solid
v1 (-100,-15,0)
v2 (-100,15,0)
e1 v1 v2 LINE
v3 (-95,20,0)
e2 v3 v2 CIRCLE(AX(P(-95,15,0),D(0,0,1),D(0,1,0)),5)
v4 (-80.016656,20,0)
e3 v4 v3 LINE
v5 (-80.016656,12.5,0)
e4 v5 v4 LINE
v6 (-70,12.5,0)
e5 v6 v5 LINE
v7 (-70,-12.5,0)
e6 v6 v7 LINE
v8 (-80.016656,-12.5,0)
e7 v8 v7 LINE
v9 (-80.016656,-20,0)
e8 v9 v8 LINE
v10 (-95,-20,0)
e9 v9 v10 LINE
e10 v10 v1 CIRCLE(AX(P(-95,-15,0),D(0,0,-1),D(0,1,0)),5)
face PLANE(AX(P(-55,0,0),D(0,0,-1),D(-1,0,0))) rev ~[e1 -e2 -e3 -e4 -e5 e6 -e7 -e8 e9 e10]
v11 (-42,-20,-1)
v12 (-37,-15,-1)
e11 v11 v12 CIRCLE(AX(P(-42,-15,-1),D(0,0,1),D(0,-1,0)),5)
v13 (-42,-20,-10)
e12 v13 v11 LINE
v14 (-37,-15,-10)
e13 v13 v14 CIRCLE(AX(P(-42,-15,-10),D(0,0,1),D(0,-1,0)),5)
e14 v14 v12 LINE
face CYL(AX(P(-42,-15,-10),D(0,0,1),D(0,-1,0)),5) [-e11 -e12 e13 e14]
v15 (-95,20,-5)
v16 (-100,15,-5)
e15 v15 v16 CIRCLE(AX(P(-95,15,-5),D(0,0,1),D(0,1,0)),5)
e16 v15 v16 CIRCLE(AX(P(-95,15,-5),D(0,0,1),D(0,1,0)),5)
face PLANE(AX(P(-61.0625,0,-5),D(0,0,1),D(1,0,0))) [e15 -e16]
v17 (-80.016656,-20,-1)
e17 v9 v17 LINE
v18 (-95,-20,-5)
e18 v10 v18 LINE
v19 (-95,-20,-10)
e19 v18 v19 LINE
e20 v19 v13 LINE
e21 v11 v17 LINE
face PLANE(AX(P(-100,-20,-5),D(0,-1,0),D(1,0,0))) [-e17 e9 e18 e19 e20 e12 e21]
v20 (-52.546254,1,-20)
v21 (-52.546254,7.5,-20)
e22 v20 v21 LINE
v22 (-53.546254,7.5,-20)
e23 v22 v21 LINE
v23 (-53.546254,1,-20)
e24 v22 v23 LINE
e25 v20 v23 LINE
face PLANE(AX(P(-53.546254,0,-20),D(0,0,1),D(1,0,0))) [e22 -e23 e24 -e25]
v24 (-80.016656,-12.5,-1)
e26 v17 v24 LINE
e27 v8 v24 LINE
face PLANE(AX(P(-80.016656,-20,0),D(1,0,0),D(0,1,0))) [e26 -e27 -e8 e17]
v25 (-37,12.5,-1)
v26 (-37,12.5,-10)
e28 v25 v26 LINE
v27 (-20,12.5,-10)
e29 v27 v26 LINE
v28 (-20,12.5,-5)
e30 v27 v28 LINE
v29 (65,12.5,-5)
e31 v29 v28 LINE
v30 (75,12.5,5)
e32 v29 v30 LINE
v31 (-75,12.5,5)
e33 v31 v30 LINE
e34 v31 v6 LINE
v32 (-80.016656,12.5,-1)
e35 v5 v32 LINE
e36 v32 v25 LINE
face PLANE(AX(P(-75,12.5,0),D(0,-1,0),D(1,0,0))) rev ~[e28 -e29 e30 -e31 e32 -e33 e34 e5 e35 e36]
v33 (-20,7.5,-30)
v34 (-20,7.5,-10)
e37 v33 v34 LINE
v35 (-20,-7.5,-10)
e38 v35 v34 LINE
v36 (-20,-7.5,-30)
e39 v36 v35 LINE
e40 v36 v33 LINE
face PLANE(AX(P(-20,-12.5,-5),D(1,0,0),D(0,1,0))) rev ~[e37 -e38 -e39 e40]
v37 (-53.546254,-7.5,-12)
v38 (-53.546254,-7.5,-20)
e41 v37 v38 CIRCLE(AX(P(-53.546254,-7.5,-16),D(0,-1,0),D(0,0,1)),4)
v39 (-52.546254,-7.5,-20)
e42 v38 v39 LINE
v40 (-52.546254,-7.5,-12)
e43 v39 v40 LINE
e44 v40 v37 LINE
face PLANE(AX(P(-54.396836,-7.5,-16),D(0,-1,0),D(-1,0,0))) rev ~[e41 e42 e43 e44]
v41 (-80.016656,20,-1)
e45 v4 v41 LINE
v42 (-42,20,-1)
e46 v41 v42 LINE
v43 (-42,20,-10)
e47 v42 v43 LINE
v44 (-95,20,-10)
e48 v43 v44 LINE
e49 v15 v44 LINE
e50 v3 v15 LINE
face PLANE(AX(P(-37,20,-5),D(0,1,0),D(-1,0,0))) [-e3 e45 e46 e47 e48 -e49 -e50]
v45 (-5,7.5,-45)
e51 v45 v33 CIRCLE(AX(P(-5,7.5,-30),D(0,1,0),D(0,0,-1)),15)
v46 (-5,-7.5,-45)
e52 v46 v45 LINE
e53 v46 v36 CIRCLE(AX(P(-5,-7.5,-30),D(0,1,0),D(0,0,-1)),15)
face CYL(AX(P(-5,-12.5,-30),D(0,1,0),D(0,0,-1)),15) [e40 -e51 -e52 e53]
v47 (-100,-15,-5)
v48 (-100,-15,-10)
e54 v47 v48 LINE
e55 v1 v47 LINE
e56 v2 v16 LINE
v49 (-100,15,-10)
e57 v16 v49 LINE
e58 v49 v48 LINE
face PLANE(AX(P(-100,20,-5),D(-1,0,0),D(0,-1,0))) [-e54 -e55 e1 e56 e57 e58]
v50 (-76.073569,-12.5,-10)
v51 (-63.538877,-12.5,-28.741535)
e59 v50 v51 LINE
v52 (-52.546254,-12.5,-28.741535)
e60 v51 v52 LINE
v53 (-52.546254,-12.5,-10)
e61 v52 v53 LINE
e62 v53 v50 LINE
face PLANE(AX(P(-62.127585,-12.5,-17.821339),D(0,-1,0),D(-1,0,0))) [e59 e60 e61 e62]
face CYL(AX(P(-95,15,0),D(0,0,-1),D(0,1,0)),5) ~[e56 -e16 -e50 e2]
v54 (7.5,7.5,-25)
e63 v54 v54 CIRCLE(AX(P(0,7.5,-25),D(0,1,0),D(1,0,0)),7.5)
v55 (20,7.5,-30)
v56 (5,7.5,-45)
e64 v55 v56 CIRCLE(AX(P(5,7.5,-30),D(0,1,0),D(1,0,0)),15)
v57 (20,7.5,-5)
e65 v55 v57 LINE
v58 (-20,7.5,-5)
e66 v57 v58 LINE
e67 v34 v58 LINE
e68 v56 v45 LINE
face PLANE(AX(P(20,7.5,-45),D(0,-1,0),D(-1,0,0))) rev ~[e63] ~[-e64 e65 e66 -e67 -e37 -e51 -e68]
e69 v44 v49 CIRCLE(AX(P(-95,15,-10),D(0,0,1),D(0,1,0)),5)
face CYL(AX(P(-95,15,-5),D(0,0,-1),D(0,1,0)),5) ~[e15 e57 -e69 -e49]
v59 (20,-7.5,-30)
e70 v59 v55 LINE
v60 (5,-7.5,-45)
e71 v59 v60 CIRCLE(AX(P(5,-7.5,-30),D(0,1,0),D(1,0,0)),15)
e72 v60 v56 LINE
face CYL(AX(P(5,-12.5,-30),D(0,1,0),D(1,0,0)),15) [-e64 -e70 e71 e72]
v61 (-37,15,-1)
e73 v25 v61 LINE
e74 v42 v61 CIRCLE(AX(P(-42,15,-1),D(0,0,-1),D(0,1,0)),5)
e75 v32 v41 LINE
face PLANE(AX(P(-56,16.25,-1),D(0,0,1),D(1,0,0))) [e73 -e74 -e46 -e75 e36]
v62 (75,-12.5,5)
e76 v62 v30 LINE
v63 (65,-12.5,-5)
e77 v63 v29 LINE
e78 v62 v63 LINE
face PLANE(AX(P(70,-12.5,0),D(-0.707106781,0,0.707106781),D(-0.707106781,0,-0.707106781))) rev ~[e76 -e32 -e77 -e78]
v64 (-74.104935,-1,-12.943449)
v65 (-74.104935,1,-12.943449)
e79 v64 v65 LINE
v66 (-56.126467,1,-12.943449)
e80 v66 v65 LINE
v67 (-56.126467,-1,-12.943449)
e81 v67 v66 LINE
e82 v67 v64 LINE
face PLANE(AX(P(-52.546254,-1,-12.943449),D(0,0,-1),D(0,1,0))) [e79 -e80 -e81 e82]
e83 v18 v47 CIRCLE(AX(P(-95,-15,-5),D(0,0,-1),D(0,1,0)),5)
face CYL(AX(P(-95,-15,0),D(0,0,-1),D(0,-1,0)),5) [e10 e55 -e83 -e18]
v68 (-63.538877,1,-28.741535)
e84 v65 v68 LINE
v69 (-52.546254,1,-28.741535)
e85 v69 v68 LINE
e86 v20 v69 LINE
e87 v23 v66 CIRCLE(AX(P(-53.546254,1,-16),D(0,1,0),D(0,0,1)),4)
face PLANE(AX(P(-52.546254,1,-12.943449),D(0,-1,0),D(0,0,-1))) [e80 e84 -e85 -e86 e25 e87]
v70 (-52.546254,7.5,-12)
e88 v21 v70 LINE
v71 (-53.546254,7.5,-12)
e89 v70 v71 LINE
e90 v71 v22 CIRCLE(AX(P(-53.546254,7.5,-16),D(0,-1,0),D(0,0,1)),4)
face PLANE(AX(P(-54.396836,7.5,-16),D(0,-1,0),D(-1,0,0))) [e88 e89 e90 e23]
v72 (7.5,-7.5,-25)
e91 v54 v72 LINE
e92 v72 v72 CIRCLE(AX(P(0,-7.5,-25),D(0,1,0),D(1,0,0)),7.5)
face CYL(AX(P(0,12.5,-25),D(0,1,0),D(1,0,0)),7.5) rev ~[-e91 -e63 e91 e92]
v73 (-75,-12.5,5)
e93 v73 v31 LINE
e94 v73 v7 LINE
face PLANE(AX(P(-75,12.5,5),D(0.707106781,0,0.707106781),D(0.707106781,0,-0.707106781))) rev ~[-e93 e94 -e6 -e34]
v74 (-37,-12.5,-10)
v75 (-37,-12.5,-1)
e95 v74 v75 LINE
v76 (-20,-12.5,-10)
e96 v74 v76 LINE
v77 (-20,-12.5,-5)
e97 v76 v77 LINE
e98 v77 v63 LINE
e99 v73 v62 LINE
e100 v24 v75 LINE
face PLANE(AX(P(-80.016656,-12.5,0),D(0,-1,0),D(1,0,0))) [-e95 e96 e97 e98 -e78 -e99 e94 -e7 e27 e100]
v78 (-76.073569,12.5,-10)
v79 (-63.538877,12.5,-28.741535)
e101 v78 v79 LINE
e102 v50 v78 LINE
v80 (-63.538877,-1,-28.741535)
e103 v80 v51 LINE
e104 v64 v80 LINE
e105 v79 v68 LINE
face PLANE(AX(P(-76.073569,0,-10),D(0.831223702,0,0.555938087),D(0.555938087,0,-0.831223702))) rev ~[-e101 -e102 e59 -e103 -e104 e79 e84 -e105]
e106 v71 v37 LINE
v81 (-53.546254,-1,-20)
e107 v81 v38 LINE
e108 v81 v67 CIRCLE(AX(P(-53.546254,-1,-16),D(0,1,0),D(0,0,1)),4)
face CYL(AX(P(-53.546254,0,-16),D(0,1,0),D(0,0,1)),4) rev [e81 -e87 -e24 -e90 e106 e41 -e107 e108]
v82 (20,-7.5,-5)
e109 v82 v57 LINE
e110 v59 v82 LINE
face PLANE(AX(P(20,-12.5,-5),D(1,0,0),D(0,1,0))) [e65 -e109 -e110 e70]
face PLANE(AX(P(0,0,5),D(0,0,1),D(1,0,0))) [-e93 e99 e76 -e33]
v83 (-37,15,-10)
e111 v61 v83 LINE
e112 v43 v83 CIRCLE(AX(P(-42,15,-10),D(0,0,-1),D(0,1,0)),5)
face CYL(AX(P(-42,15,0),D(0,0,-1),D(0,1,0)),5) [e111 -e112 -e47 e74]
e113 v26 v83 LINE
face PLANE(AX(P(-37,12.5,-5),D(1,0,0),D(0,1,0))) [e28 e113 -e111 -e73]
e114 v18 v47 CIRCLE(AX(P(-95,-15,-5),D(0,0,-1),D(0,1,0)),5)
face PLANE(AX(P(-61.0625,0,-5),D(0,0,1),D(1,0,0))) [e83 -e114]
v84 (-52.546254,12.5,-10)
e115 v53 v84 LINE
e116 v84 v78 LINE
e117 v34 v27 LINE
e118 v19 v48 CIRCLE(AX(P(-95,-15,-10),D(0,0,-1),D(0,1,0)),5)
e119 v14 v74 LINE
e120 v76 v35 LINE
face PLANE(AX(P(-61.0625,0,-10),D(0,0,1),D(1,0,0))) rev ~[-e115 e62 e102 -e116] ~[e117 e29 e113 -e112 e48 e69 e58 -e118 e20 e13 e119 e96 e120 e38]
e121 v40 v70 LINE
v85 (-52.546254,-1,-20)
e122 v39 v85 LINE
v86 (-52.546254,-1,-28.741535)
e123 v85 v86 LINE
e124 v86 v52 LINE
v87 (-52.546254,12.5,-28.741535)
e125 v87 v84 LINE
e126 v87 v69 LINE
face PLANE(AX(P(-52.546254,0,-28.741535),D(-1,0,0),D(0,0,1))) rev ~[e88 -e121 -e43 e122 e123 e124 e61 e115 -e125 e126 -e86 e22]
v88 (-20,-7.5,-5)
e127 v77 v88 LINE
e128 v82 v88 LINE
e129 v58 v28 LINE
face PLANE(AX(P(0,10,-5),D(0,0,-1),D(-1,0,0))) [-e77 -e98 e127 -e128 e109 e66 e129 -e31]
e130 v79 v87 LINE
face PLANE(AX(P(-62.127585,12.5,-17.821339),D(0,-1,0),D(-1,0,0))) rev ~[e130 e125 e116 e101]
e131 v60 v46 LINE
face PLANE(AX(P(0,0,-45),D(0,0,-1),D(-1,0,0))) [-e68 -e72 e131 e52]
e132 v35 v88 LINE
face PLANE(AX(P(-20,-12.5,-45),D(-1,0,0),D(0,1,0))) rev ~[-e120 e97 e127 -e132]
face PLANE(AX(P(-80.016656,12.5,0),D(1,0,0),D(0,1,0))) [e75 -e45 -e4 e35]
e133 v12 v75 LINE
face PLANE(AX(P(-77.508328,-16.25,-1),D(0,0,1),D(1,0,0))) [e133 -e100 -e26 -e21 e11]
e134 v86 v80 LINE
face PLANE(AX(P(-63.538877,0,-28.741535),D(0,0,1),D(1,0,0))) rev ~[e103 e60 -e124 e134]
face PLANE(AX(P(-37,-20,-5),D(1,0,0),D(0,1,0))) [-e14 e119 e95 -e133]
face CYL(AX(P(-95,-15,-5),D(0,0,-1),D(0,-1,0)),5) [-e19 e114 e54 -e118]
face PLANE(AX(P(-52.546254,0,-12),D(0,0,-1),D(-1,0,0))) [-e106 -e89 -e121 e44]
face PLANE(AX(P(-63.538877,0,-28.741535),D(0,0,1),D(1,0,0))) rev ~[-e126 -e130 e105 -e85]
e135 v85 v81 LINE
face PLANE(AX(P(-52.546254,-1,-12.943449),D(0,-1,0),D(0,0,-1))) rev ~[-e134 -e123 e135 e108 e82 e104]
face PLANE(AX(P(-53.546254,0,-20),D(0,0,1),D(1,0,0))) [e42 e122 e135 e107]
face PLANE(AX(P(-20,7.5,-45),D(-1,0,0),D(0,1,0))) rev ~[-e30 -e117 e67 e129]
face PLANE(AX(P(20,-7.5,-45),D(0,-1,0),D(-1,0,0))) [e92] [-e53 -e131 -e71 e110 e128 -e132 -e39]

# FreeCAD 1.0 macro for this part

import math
import FreeCAD as App
import Part
import Sketcher

V = App.Vector
Q = App.Units.Quantity


def edges_at(feature, points):
    """Names of the edges that pass closest to the given points."""
    edges = feature.Shape.Edges
    near = lambda p: min(range(len(edges)), key=lambda i: edges[i].distToShape(Part.Vertex(*p))[0])
    return sorted({f"Edge{near(p) + 1}" for p in points})

doc = App.newDocument("Part")
body = doc.addObject("PartDesign::Body", "Body")

# Sketch on XY plane
sketch1 = body.newObject("Sketcher::SketchObject", "Sketch")
sketch1.AttachmentSupport = (doc.getObject("XY_Plane"), [""])
sketch1.MapMode = "FlatFace"
sketch1.addGeometry(Part.LineSegment(V(-75, 12, 0), V(-75, -12, 0)), False)
sketch1.addGeometry(Part.LineSegment(V(-75, -12, 0), V(75, -12, 0)), False)
sketch1.addGeometry(Part.LineSegment(V(75, -12, 0), V(75, 12, 0)), False)
sketch1.addGeometry(Part.LineSegment(V(75, 12, 0), V(-75, 12, 0)), False)
sketch1.addConstraint(Sketcher.Constraint("Coincident", 0, 2, 1, 1))
sketch1.addConstraint(Sketcher.Constraint("Coincident", 1, 2, 2, 1))
sketch1.addConstraint(Sketcher.Constraint("Coincident", 2, 2, 3, 1))
sketch1.addConstraint(Sketcher.Constraint("Coincident", 3, 2, 0, 1))
sketch1.addConstraint(Sketcher.Constraint("Vertical", 0))
sketch1.addConstraint(Sketcher.Constraint("Horizontal", 1))
sketch1.addConstraint(Sketcher.Constraint("Vertical", 2))
sketch1.addConstraint(Sketcher.Constraint("Horizontal", 3))
sketch1.addConstraint(Sketcher.Constraint("Symmetric", 0, 2, 2, 2, -1, 1))
sketch1.addConstraint(Sketcher.Constraint("DistanceX", 1, 1, 1, 2, Q("150 mm")))
sketch1.addConstraint(Sketcher.Constraint("DistanceY", 0, 2, 0, 1, Q("25 mm")))
pad1 = body.newObject("PartDesign::Pad", "Pad")
pad1.Profile = sketch1
pad1.Length = 5

# Sketch on XZ plane
sketch2 = body.newObject("Sketcher::SketchObject", "Sketch001")
sketch2.AttachmentSupport = (doc.getObject("XZ_Plane"), [""])
sketch2.MapMode = "FlatFace"
sketch2.AttachmentOffset = App.Placement(V(0, 0, -12.5), App.Rotation())
sketch2.addGeometry(Part.LineSegment(V(70, 0, 0), V(75, 5, 0)), False)
sketch2.addGeometry(Part.LineSegment(V(75, 5, 0), V(75, 0, 0)), False)
sketch2.addGeometry(Part.LineSegment(V(75, 0, 0), V(70, 0, 0)), False)
sketch2.addGeometry(Part.LineSegment(V(-70, 0, 0), V(-75, 0, 0)), False)
sketch2.addGeometry(Part.LineSegment(V(-75, 0, 0), V(-75, 5, 0)), False)
sketch2.addGeometry(Part.LineSegment(V(-75, 5, 0), V(-70, 0, 0)), False)
sketch2.addConstraint(Sketcher.Constraint("Coincident", 0, 2, 1, 1))
sketch2.addConstraint(Sketcher.Constraint("Coincident", 1, 2, 2, 1))
sketch2.addConstraint(Sketcher.Constraint("Coincident", 2, 2, 0, 1))
sketch2.addConstraint(Sketcher.Constraint("Coincident", 3, 2, 4, 1))
sketch2.addConstraint(Sketcher.Constraint("Coincident", 4, 2, 5, 1))
sketch2.addConstraint(Sketcher.Constraint("Coincident", 5, 2, 3, 1))
sketch2.addConstraint(Sketcher.Constraint("Vertical", 1))
sketch2.addConstraint(Sketcher.Constraint("Horizontal", 2))
sketch2.addConstraint(Sketcher.Constraint("Horizontal", 3))
sketch2.addConstraint(Sketcher.Constraint("Vertical", 4))
sketch2.addConstraint(Sketcher.Constraint("Symmetric", 1, 2, 3, 2, -1, 1))
sketch2.addConstraint(Sketcher.Constraint("Symmetric", 2, 2, 5, 2, -2))
sketch2.addConstraint(Sketcher.Constraint("Perpendicular", 0, 5))
sketch2.addConstraint(Sketcher.Constraint("Horizontal", 0, 2, 4, 2))
sketch2.addConstraint(Sketcher.Constraint("DistanceX", 2, 2, 2, 1, Q("5 mm")))
sketch2.addConstraint(Sketcher.Constraint("DistanceX", -1, 1, 0, 2, Q("75 mm")))
pocket1 = body.newObject("PartDesign::Pocket", "Pocket")
pocket1.Profile = sketch2
pocket1.Type = "ThroughAll"
pocket1.Reversed = True

# Sketch on XY plane
sketch3 = body.newObject("Sketcher::SketchObject", "Sketch002")
sketch3.AttachmentSupport = (doc.getObject("XY_Plane"), [""])
sketch3.MapMode = "FlatFace"
sketch3.addGeometry(Part.LineSegment(V(-10, 20, 0), V(-10, -20, 0)), False)
sketch3.addGeometry(Part.LineSegment(V(-10, -20, 0), V(-100, -20, 0)), False)
sketch3.addGeometry(Part.LineSegment(V(-100, -20, 0), V(-100, 20, 0)), False)
sketch3.addGeometry(Part.LineSegment(V(-100, 20, 0), V(-10, 20, 0)), False)
sketch3.addConstraint(Sketcher.Constraint("Coincident", 0, 2, 1, 1))
sketch3.addConstraint(Sketcher.Constraint("Coincident", 1, 2, 2, 1))
sketch3.addConstraint(Sketcher.Constraint("Coincident", 2, 2, 3, 1))
sketch3.addConstraint(Sketcher.Constraint("Coincident", 3, 2, 0, 1))
sketch3.addConstraint(Sketcher.Constraint("Vertical", 0))
sketch3.addConstraint(Sketcher.Constraint("Horizontal", 1))
sketch3.addConstraint(Sketcher.Constraint("Vertical", 2))
sketch3.addConstraint(Sketcher.Constraint("Horizontal", 3))
sketch3.addConstraint(Sketcher.Constraint("DistanceX", 1, 2, 1, 1, Q("90 mm")))
sketch3.addConstraint(Sketcher.Constraint("DistanceY", 0, 2, 0, 1, Q("40 mm")))
sketch3.addConstraint(Sketcher.Constraint("DistanceX", 0, 2, -1, 1, Q("10 mm")))
sketch3.addConstraint(Sketcher.Constraint("DistanceY", 0, 2, -1, 1, Q("20 mm")))
pad2 = body.newObject("PartDesign::Pad", "Pad001")
pad2.Profile = sketch3
pad2.Length = 5
pad2.Reversed = True
doc.recompute()

fillet = body.newObject("PartDesign::Fillet", "Fillet")
fillet.Base = (pad2, edges_at(pad2, [
    (-100, -20, -2.5),
    (-100, 20, -2.5),
    (-10, 20, -2.5),
    (-10, -20, -2.5),
]))
fillet.Radius = 5

# Sketch on XY plane
sketch4 = body.newObject("Sketcher::SketchObject", "Sketch003")
sketch4.AttachmentSupport = (doc.getObject("XY_Plane"), [""])
sketch4.MapMode = "FlatFace"
sketch4.addGeometry(Part.LineSegment(V(65, 12, 0), V(65, -12, 0)), False)
sketch4.addGeometry(Part.LineSegment(V(65, -12, 0), V(-10, -12, 0)), False)
sketch4.addGeometry(Part.LineSegment(V(-10, -12, 0), V(-10, 12, 0)), False)
sketch4.addGeometry(Part.LineSegment(V(-10, 12, 0), V(65, 12, 0)), False)
sketch4.addConstraint(Sketcher.Constraint("Coincident", 0, 2, 1, 1))
sketch4.addConstraint(Sketcher.Constraint("Coincident", 1, 2, 2, 1))
sketch4.addConstraint(Sketcher.Constraint("Coincident", 2, 2, 3, 1))
sketch4.addConstraint(Sketcher.Constraint("Coincident", 3, 2, 0, 1))
sketch4.addConstraint(Sketcher.Constraint("Vertical", 0))
sketch4.addConstraint(Sketcher.Constraint("Horizontal", 1))
sketch4.addConstraint(Sketcher.Constraint("Vertical", 2))
sketch4.addConstraint(Sketcher.Constraint("Horizontal", 3))
sketch4.addConstraint(Sketcher.Constraint("DistanceX", 1, 2, 1, 1, Q("75 mm")))
sketch4.addConstraint(Sketcher.Constraint("DistanceY", 0, 2, 0, 1, Q("25 mm")))
sketch4.addConstraint(Sketcher.Constraint("DistanceX", -1, 1, 0, 2, Q("65 mm")))
sketch4.addConstraint(Sketcher.Constraint("DistanceY", 0, 2, -1, 1, Q("12.5 mm")))
pad3 = body.newObject("PartDesign::Pad", "Pad002")
pad3.Profile = sketch4
pad3.Length = 5
pad3.Reversed = True

# Sketch on XZ plane
sketch5 = body.newObject("Sketcher::SketchObject", "Sketch004")
sketch5.AttachmentSupport = (doc.getObject("XZ_Plane"), [""])
sketch5.MapMode = "FlatFace"
sketch5.AttachmentOffset = App.Placement(V(0, 0, 12.5), App.Rotation())
sketch5.addGeometry(Part.LineSegment(V(70, 0, 0), V(65, 0, 0)), False)
sketch5.addGeometry(Part.LineSegment(V(65, 0, 0), V(65, -5, 0)), False)
sketch5.addGeometry(Part.LineSegment(V(65, -5, 0), V(70, 0, 0)), False)
sketch5.addConstraint(Sketcher.Constraint("Coincident", 0, 2, 1, 1))
sketch5.addConstraint(Sketcher.Constraint("Coincident", 1, 2, 2, 1))
sketch5.addConstraint(Sketcher.Constraint("Coincident", 2, 2, 0, 1))
sketch5.addConstraint(Sketcher.Constraint("Horizontal", 0))
sketch5.addConstraint(Sketcher.Constraint("Vertical", 1))
sketch5.addConstraint(Sketcher.Constraint("PointOnObject", 0, 2, -1))
sketch5.addConstraint(Sketcher.Constraint("Equal", 0, 1))
sketch5.addConstraint(Sketcher.Constraint("DistanceX", 0, 2, 0, 1, Q("5 mm")))
sketch5.addConstraint(Sketcher.Constraint("DistanceX", -1, 1, 0, 2, Q("65 mm")))
pad4 = body.newObject("PartDesign::Pad", "Pad003")
pad4.Profile = sketch5
pad4.Length = 25
pad4.Reversed = True

# Sketch on XY plane
sketch6 = body.newObject("Sketcher::SketchObject", "Sketch005")
sketch6.AttachmentSupport = (doc.getObject("XY_Plane"), [""])
sketch6.MapMode = "FlatFace"
sketch6.AttachmentOffset = App.Placement(V(0, 0, -5), App.Rotation())
sketch6.addGeometry(Part.LineSegment(V(20, 12, 0), V(20, -12, 0)), False)
sketch6.addGeometry(Part.LineSegment(V(20, -12, 0), V(-20, -12, 0)), False)
sketch6.addGeometry(Part.LineSegment(V(-20, -12, 0), V(-20, 12, 0)), False)
sketch6.addGeometry(Part.LineSegment(V(-20, 12, 0), V(20, 12, 0)), False)
sketch6.addConstraint(Sketcher.Constraint("Coincident", 0, 2, 1, 1))
sketch6.addConstraint(Sketcher.Constraint("Coincident", 1, 2, 2, 1))
sketch6.addConstraint(Sketcher.Constraint("Coincident", 2, 2, 3, 1))
sketch6.addConstraint(Sketcher.Constraint("Coincident", 3, 2, 0, 1))
sketch6.addConstraint(Sketcher.Constraint("Vertical", 0))
sketch6.addConstraint(Sketcher.Constraint("Horizontal", 1))
sketch6.addConstraint(Sketcher.Constraint("Vertical", 2))
sketch6.addConstraint(Sketcher.Constraint("Horizontal", 3))
sketch6.addConstraint(Sketcher.Constraint("Symmetric", 0, 2, 2, 2, -1, 1))
sketch6.addConstraint(Sketcher.Constraint("DistanceX", 1, 2, 1, 1, Q("40 mm")))
sketch6.addConstraint(Sketcher.Constraint("DistanceY", 0, 2, 0, 1, Q("25 mm")))
pad5 = body.newObject("PartDesign::Pad", "Pad004")
pad5.Profile = sketch6
pad5.Length = 40
pad5.Reversed = True
doc.recompute()

fillet2 = body.newObject("PartDesign::Fillet", "Fillet001")
fillet2.Base = (pad5, edges_at(pad5, [(20, 0, -45), (-20, 0, -45)]))
fillet2.Radius = 15

# Sketch on XZ plane
sketch7 = body.newObject("Sketcher::SketchObject", "Sketch006")
sketch7.AttachmentSupport = (doc.getObject("XZ_Plane"), [""])
sketch7.MapMode = "FlatFace"
sketch7.AttachmentOffset = App.Placement(V(0, 0, -12.5), App.Rotation())
sketch7.addGeometry(Part.Circle(V(0, -25, 0), V(0, 0, 1), 8), False)
sketch7.addConstraint(Sketcher.Constraint("PointOnObject", 0, 3, -2))
sketch7.addConstraint(Sketcher.Constraint("Diameter", 0, Q("15 mm")))
sketch7.addConstraint(Sketcher.Constraint("DistanceY", 0, 3, -1, 1, Q("25 mm")))
pocket2 = body.newObject("PartDesign::Pocket", "Pocket001")
pocket2.Profile = sketch7
pocket2.Length = 40
pocket2.Reversed = True

# Sketch on XY plane
sketch8 = body.newObject("Sketcher::SketchObject", "Sketch007")
sketch8.AttachmentSupport = (doc.getObject("XY_Plane"), [""])
sketch8.MapMode = "FlatFace"
sketch8.addGeometry(Part.LineSegment(V(-37, 20, 0), V(-37, 12, 0)), False)
sketch8.addGeometry(Part.LineSegment(V(-37, 12, 0), V(-10, 12, 0)), False)
sketch8.addGeometry(Part.LineSegment(V(-10, 12, 0), V(-10, 20, 0)), False)
sketch8.addGeometry(Part.LineSegment(V(-10, 20, 0), V(-37, 20, 0)), False)
sketch8.addGeometry(Part.LineSegment(V(-37, -12, 0), V(-37, -20, 0)), False)
sketch8.addGeometry(Part.LineSegment(V(-37, -20, 0), V(-10, -20, 0)), False)
sketch8.addGeometry(Part.LineSegment(V(-10, -20, 0), V(-10, -12, 0)), False)
sketch8.addGeometry(Part.LineSegment(V(-10, -12, 0), V(-37, -12, 0)), False)
sketch8.addConstraint(Sketcher.Constraint("Coincident", 0, 2, 1, 1))
sketch8.addConstraint(Sketcher.Constraint("Coincident", 1, 2, 2, 1))
sketch8.addConstraint(Sketcher.Constraint("Coincident", 2, 2, 3, 1))
sketch8.addConstraint(Sketcher.Constraint("Coincident", 3, 2, 0, 1))
sketch8.addConstraint(Sketcher.Constraint("Coincident", 4, 2, 5, 1))
sketch8.addConstraint(Sketcher.Constraint("Coincident", 5, 2, 6, 1))
sketch8.addConstraint(Sketcher.Constraint("Coincident", 6, 2, 7, 1))
sketch8.addConstraint(Sketcher.Constraint("Coincident", 7, 2, 4, 1))
sketch8.addConstraint(Sketcher.Constraint("Vertical", 0))
sketch8.addConstraint(Sketcher.Constraint("Horizontal", 1))
sketch8.addConstraint(Sketcher.Constraint("Vertical", 2))
sketch8.addConstraint(Sketcher.Constraint("Horizontal", 3))
sketch8.addConstraint(Sketcher.Constraint("Vertical", 4))
sketch8.addConstraint(Sketcher.Constraint("Horizontal", 5))
sketch8.addConstraint(Sketcher.Constraint("Vertical", 6))
sketch8.addConstraint(Sketcher.Constraint("Horizontal", 7))
sketch8.addConstraint(Sketcher.Constraint("Symmetric", 3, 2, 4, 2, -1))
sketch8.addConstraint(Sketcher.Constraint("Symmetric", 1, 2, 6, 2, -1))
sketch8.addConstraint(Sketcher.Constraint("DistanceX", 1, 1, 1, 2, Q("27 mm")))
sketch8.addConstraint(Sketcher.Constraint("DistanceY", 0, 2, 0, 1, Q("7.5 mm")))
sketch8.addConstraint(Sketcher.Constraint("DistanceX", 0, 2, -1, 1, Q("37 mm")))
sketch8.addConstraint(Sketcher.Constraint("DistanceY", -1, 1, 2, 2, Q("20 mm")))
pocket3 = body.newObject("PartDesign::Pocket", "Pocket002")
pocket3.Profile = sketch8
pocket3.Length = 10

# Sketch on XY plane
sketch9 = body.newObject("Sketcher::SketchObject", "Sketch008")
sketch9.AttachmentSupport = (doc.getObject("XY_Plane"), [""])
sketch9.MapMode = "FlatFace"
sketch9.AttachmentOffset = App.Placement(V(0, 0, -5), App.Rotation())
sketch9.addGeometry(Part.LineSegment(V(-100, 20, 0), V(-37, 20, 0)), False)
sketch9.addGeometry(Part.LineSegment(V(-37, 20, 0), V(-37, 12, 0)), False)
sketch9.addGeometry(Part.LineSegment(V(-37, 12, 0), V(-20, 12, 0)), False)
sketch9.addGeometry(Part.LineSegment(V(-20, 12, 0), V(-20, -12, 0)), False)
sketch9.addGeometry(Part.LineSegment(V(-20, -12, 0), V(-37, -12, 0)), False)
sketch9.addGeometry(Part.LineSegment(V(-37, -12, 0), V(-37, -20, 0)), False)
sketch9.addGeometry(Part.LineSegment(V(-37, -20, 0), V(-100, -20, 0)), False)
sketch9.addGeometry(Part.LineSegment(V(-100, -20, 0), V(-100, 20, 0)), False)
sketch9.addConstraint(Sketcher.Constraint("Coincident", 0, 2, 1, 1))
sketch9.addConstraint(Sketcher.Constraint("Coincident", 1, 2, 2, 1))
sketch9.addConstraint(Sketcher.Constraint("Coincident", 2, 2, 3, 1))
sketch9.addConstraint(Sketcher.Constraint("Coincident", 3, 2, 4, 1))
sketch9.addConstraint(Sketcher.Constraint("Coincident", 4, 2, 5, 1))
sketch9.addConstraint(Sketcher.Constraint("Coincident", 5, 2, 6, 1))
sketch9.addConstraint(Sketcher.Constraint("Coincident", 6, 2, 7, 1))
sketch9.addConstraint(Sketcher.Constraint("Coincident", 7, 2, 0, 1))
sketch9.addConstraint(Sketcher.Constraint("Horizontal", 0))
sketch9.addConstraint(Sketcher.Constraint("Vertical", 1))
sketch9.addConstraint(Sketcher.Constraint("Horizontal", 2))
sketch9.addConstraint(Sketcher.Constraint("Vertical", 3))
sketch9.addConstraint(Sketcher.Constraint("Horizontal", 4))
sketch9.addConstraint(Sketcher.Constraint("Vertical", 5))
sketch9.addConstraint(Sketcher.Constraint("Horizontal", 6))
sketch9.addConstraint(Sketcher.Constraint("Vertical", 7))
sketch9.addConstraint(Sketcher.Constraint("Symmetric", 1, 2, 4, 2, -1))
sketch9.addConstraint(Sketcher.Constraint("Equal", 1, 5))
sketch9.addConstraint(Sketcher.Constraint("DistanceX", 0, 1, 0, 2, Q("63 mm")))
sketch9.addConstraint(Sketcher.Constraint("DistanceX", 2, 1, 2, 2, Q("17 mm")))
sketch9.addConstraint(Sketcher.Constraint("DistanceY", 3, 2, 3, 1, Q("25 mm")))
sketch9.addConstraint(Sketcher.Constraint("DistanceY", 7, 1, 7, 2, Q("40 mm")))
sketch9.addConstraint(Sketcher.Constraint("DistanceX", 0, 2, -1, 1, Q("37 mm")))
pad6 = body.newObject("PartDesign::Pad", "Pad005")
pad6.Profile = sketch9
pad6.Length = 5
pad6.Reversed = True
doc.recompute()

fillet3 = body.newObject("PartDesign::Fillet", "Fillet002")
fillet3.Base = (pad6, edges_at(pad6, [(-100, 20, -7.5), (-100, -20, -7.5)]))
fillet3.Radius = 5
doc.recompute()

fillet4 = body.newObject("PartDesign::Fillet", "Fillet003")
fillet4.Base = (fillet3, edges_at(fillet3, [(-37, 20, -5), (-37, -20, -5)]))
fillet4.Radius = 5

# Sketch on XZ plane
sketch10 = body.newObject("Sketcher::SketchObject", "Sketch009")
sketch10.AttachmentSupport = (doc.getObject("XZ_Plane"), [""])
sketch10.MapMode = "FlatFace"
sketch10.addGeometry(Part.LineSegment(V(-64, -29, 0), V(-76, -10, 0)), False)
sketch10.addGeometry(Part.LineSegment(V(-76, -10, 0), V(-53, -10, 0)), False)
sketch10.addGeometry(Part.LineSegment(V(-53, -10, 0), V(-53, -29, 0)), False)
sketch10.addGeometry(Part.LineSegment(V(-53, -29, 0), V(-64, -29, 0)), False)
sketch10.addConstraint(Sketcher.Constraint("Coincident", 0, 2, 1, 1))
sketch10.addConstraint(Sketcher.Constraint("Coincident", 1, 2, 2, 1))
sketch10.addConstraint(Sketcher.Constraint("Coincident", 2, 2, 3, 1))
sketch10.addConstraint(Sketcher.Constraint("Coincident", 3, 2, 0, 1))
sketch10.addConstraint(Sketcher.Constraint("Horizontal", 1))
sketch10.addConstraint(Sketcher.Constraint("Vertical", 2))
sketch10.addConstraint(Sketcher.Constraint("Horizontal", 3))
sketch10.addConstraint(Sketcher.Constraint("DistanceY", 0, 2, -1, 1, Q("10 mm")))
sketch10.addConstraint(Sketcher.Constraint("Distance", 0, Q("22.546921 mm")))
sketch10.addConstraint(Sketcher.Constraint("DistanceX", 1, 1, 1, 2, Q("23.527316 mm")))
sketch10.addConstraint(Sketcher.Constraint("DistanceX", 3, 2, 3, 1, Q("10.992624 mm")))
sketch10.addConstraint(Sketcher.Constraint("DistanceX", 0, 2, -1, 1, Q("76.073569 mm")))
pad7 = body.newObject("PartDesign::Pad", "Pad006")
pad7.Profile = sketch10
pad7.Length = 25
pad7.Midplane = True

# Sketch on YZ plane
sketch11 = body.newObject("Sketcher::SketchObject", "Sketch010")
sketch11.AttachmentSupport = (doc.getObject("YZ_Plane"), [""])
sketch11.MapMode = "FlatFace"
sketch11.AttachmentOffset = App.Placement(V(0, 0, -52.546254), App.Rotation())
sketch11.addGeometry(Part.LineSegment(V(1, -12.9, 0), V(-1, -12.9, 0)), False)
sketch11.addGeometry(Part.LineSegment(V(-1, -12.9, 0), V(-1, -28.7, 0)), False)
sketch11.addGeometry(Part.LineSegment(V(-1, -28.7, 0), V(1, -28.7, 0)), False)
sketch11.addGeometry(Part.LineSegment(V(1, -28.7, 0), V(1, -12.9, 0)), False)
sketch11.addConstraint(Sketcher.Constraint("Coincident", 0, 2, 1, 1))
sketch11.addConstraint(Sketcher.Constraint("Coincident", 1, 2, 2, 1))
sketch11.addConstraint(Sketcher.Constraint("Coincident", 2, 2, 3, 1))
sketch11.addConstraint(Sketcher.Constraint("Coincident", 3, 2, 0, 1))
sketch11.addConstraint(Sketcher.Constraint("Horizontal", 0))
sketch11.addConstraint(Sketcher.Constraint("Vertical", 1))
sketch11.addConstraint(Sketcher.Constraint("Horizontal", 2))
sketch11.addConstraint(Sketcher.Constraint("Vertical", 3))
sketch11.addConstraint(Sketcher.Constraint("DistanceX", 0, 2, 0, 1, Q("2 mm")))
sketch11.addConstraint(Sketcher.Constraint("DistanceX", 0, 2, -1, 1, Q("1 mm")))
sketch11.addConstraint(Sketcher.Constraint("DistanceY", 1, 2, 1, 1, Q("15.798086 mm")))
sketch11.addConstraint(Sketcher.Constraint("DistanceY", 0, 2, -1, 1, Q("12.943449 mm")))
pocket4 = body.newObject("PartDesign::Pocket", "Pocket003")
pocket4.Profile = sketch11
pocket4.Length = 25

# Sketch on XZ plane
sketch12 = body.newObject("Sketcher::SketchObject", "Sketch011")
sketch12.AttachmentSupport = (doc.getObject("XZ_Plane"), [""])
sketch12.MapMode = "FlatFace"
sketch12.addGeometry(Part.LineSegment(V(-53.5, -12, 0), V(-52.5, -12, 0)), False)
sketch12.addGeometry(Part.LineSegment(V(-52.5, -12, 0), V(-52.5, -20, 0)), False)
sketch12.addGeometry(Part.LineSegment(V(-52.5, -20, 0), V(-53.5, -20, 0)), False)
sketch12.addGeometry(Part.ArcOfCircle(Part.Circle(V(-53.5, -16, 0), V(0, 0, 1), 4), math.radians(90), math.radians(270)), False)
sketch12.addConstraint(Sketcher.Constraint("Coincident", 0, 2, 1, 1))
sketch12.addConstraint(Sketcher.Constraint("Coincident", 1, 2, 2, 1))
sketch12.addConstraint(Sketcher.Constraint("Tangent", 2, 2, 3, 2))
sketch12.addConstraint(Sketcher.Constraint("Tangent", 3, 1, 0, 1))
sketch12.addConstraint(Sketcher.Constraint("Horizontal", 0))
sketch12.addConstraint(Sketcher.Constraint("Vertical", 1))
sketch12.addConstraint(Sketcher.Constraint("Horizontal", 2))
sketch12.addConstraint(Sketcher.Constraint("Radius", 3, Q("4 mm")))
sketch12.addConstraint(Sketcher.Constraint("DistanceX", 0, 1, 0, 2, Q("1 mm")))
sketch12.addConstraint(Sketcher.Constraint("DistanceY", 3, 3, -1, 1, Q("16 mm")))
sketch12.addConstraint(Sketcher.Constraint("DistanceX", 3, 3, -1, 1, Q("53.546254 mm")))
pocket5 = body.newObject("PartDesign::Pocket", "Pocket004")
pocket5.Profile = sketch12
pocket5.Length = 15
pocket5.Midplane = True

# Sketch on XY plane
sketch13 = body.newObject("Sketcher::SketchObject", "Sketch012")
sketch13.AttachmentSupport = (doc.getObject("XY_Plane"), [""])
sketch13.MapMode = "FlatFace"
sketch13.AttachmentOffset = App.Placement(V(0, 0, -45), App.Rotation())
sketch13.addGeometry(Part.LineSegment(V(20, 12, 0), V(20, 8, 0)), False)
sketch13.addGeometry(Part.LineSegment(V(20, 8, 0), V(-20, 8, 0)), False)
sketch13.addGeometry(Part.LineSegment(V(-20, 8, 0), V(-20, 12, 0)), False)
sketch13.addGeometry(Part.LineSegment(V(-20, 12, 0), V(20, 12, 0)), False)
sketch13.addGeometry(Part.LineSegment(V(20, -8, 0), V(20, -12, 0)), False)
sketch13.addGeometry(Part.LineSegment(V(20, -12, 0), V(-20, -12, 0)), False)
sketch13.addGeometry(Part.LineSegment(V(-20, -12, 0), V(-20, -8, 0)), False)
sketch13.addGeometry(Part.LineSegment(V(-20, -8, 0), V(20, -8, 0)), False)
sketch13.addConstraint(Sketcher.Constraint("Coincident", 0, 2, 1, 1))
sketch13.addConstraint(Sketcher.Constraint("Coincident", 1, 2, 2, 1))
sketch13.addConstraint(Sketcher.Constraint("Coincident", 2, 2, 3, 1))
sketch13.addConstraint(Sketcher.Constraint("Coincident", 3, 2, 0, 1))
sketch13.addConstraint(Sketcher.Constraint("Coincident", 4, 2, 5, 1))
sketch13.addConstraint(Sketcher.Constraint("Coincident", 5, 2, 6, 1))
sketch13.addConstraint(Sketcher.Constraint("Coincident", 6, 2, 7, 1))
sketch13.addConstraint(Sketcher.Constraint("Coincident", 7, 2, 4, 1))
sketch13.addConstraint(Sketcher.Constraint("Vertical", 0))
sketch13.addConstraint(Sketcher.Constraint("Horizontal", 1))
sketch13.addConstraint(Sketcher.Constraint("Vertical", 2))
sketch13.addConstraint(Sketcher.Constraint("Horizontal", 3))
sketch13.addConstraint(Sketcher.Constraint("Vertical", 4))
sketch13.addConstraint(Sketcher.Constraint("Horizontal", 5))
sketch13.addConstraint(Sketcher.Constraint("Vertical", 6))
sketch13.addConstraint(Sketcher.Constraint("Horizontal", 7))
sketch13.addConstraint(Sketcher.Constraint("Symmetric", 2, 2, 4, 2, -1, 1))
sketch13.addConstraint(Sketcher.Constraint("Symmetric", 0, 2, 6, 2, -1, 1))
sketch13.addConstraint(Sketcher.Constraint("Vertical", 3, 2, 4, 2))
sketch13.addConstraint(Sketcher.Constraint("DistanceX", 1, 2, 1, 1, Q("40 mm")))
sketch13.addConstraint(Sketcher.Constraint("DistanceY", 0, 2, 0, 1, Q("5 mm")))
sketch13.addConstraint(Sketcher.Constraint("DistanceY", 4, 2, 0, 2, Q("20 mm")))
pocket6 = body.newObject("PartDesign::Pocket", "Pocket005")
pocket6.Profile = sketch13
pocket6.Length = 40
pocket6.Reversed = True

# Sketch on XY plane
sketch14 = body.newObject("Sketcher::SketchObject", "Sketch013")
sketch14.AttachmentSupport = (doc.getObject("XY_Plane"), [""])
sketch14.MapMode = "FlatFace"
sketch14.addGeometry(Part.LineSegment(V(-75, 20, 0), V(-75, 12, 0)), False)
sketch14.addGeometry(Part.LineSegment(V(-75, 12, 0), V(-37, 12, 0)), False)
sketch14.addGeometry(Part.LineSegment(V(-37, 12, 0), V(-37, 20, 0)), False)
sketch14.addGeometry(Part.LineSegment(V(-37, 20, 0), V(-75, 20, 0)), False)
sketch14.addGeometry(Part.LineSegment(V(-75, -12, 0), V(-75, -20, 0)), False)
sketch14.addGeometry(Part.LineSegment(V(-75, -20, 0), V(-37, -20, 0)), False)
sketch14.addGeometry(Part.LineSegment(V(-37, -20, 0), V(-37, -12, 0)), False)
sketch14.addGeometry(Part.LineSegment(V(-37, -12, 0), V(-75, -12, 0)), False)
sketch14.addConstraint(Sketcher.Constraint("Coincident", 0, 2, 1, 1))
sketch14.addConstraint(Sketcher.Constraint("Coincident", 1, 2, 2, 1))
sketch14.addConstraint(Sketcher.Constraint("Coincident", 2, 2, 3, 1))
sketch14.addConstraint(Sketcher.Constraint("Coincident", 3, 2, 0, 1))
sketch14.addConstraint(Sketcher.Constraint("Coincident", 4, 2, 5, 1))
sketch14.addConstraint(Sketcher.Constraint("Coincident", 5, 2, 6, 1))
sketch14.addConstraint(Sketcher.Constraint("Coincident", 6, 2, 7, 1))
sketch14.addConstraint(Sketcher.Constraint("Coincident", 7, 2, 4, 1))
sketch14.addConstraint(Sketcher.Constraint("Vertical", 0))
sketch14.addConstraint(Sketcher.Constraint("Horizontal", 1))
sketch14.addConstraint(Sketcher.Constraint("Vertical", 2))
sketch14.addConstraint(Sketcher.Constraint("Horizontal", 3))
sketch14.addConstraint(Sketcher.Constraint("Vertical", 4))
sketch14.addConstraint(Sketcher.Constraint("Horizontal", 5))
sketch14.addConstraint(Sketcher.Constraint("Vertical", 6))
sketch14.addConstraint(Sketcher.Constraint("Horizontal", 7))
sketch14.addConstraint(Sketcher.Constraint("Symmetric", 3, 2, 4, 2, -1))
sketch14.addConstraint(Sketcher.Constraint("Symmetric", 1, 2, 6, 2, -1))
sketch14.addConstraint(Sketcher.Constraint("DistanceX", 1, 1, 1, 2, Q("38 mm")))
sketch14.addConstraint(Sketcher.Constraint("DistanceY", 0, 2, 0, 1, Q("7.5 mm")))
sketch14.addConstraint(Sketcher.Constraint("DistanceX", 0, 2, -1, 1, Q("75 mm")))
sketch14.addConstraint(Sketcher.Constraint("DistanceY", -1, 1, 2, 2, Q("20 mm")))
pocket7 = body.newObject("PartDesign::Pocket", "Pocket006")
pocket7.Profile = sketch14
pocket7.Length = 1

# Sketch on XY plane
sketch15 = body.newObject("Sketcher::SketchObject", "Sketch014")
sketch15.AttachmentSupport = (doc.getObject("XY_Plane"), [""])
sketch15.MapMode = "FlatFace"
sketch15.addGeometry(Part.LineSegment(V(-80, 20, 0), V(-80, 12, 0)), False)
sketch15.addGeometry(Part.LineSegment(V(-80, 12, 0), V(-75, 12, 0)), False)
sketch15.addGeometry(Part.LineSegment(V(-75, 12, 0), V(-75, 20, 0)), False)
sketch15.addGeometry(Part.LineSegment(V(-75, 20, 0), V(-80, 20, 0)), False)
sketch15.addGeometry(Part.LineSegment(V(-80, -12, 0), V(-80, -20, 0)), False)
sketch15.addGeometry(Part.LineSegment(V(-80, -20, 0), V(-75, -20, 0)), False)
sketch15.addGeometry(Part.LineSegment(V(-75, -20, 0), V(-75, -12, 0)), False)
sketch15.addGeometry(Part.LineSegment(V(-75, -12, 0), V(-80, -12, 0)), False)
sketch15.addConstraint(Sketcher.Constraint("Coincident", 0, 2, 1, 1))
sketch15.addConstraint(Sketcher.Constraint("Coincident", 1, 2, 2, 1))
sketch15.addConstraint(Sketcher.Constraint("Coincident", 2, 2, 3, 1))
sketch15.addConstraint(Sketcher.Constraint("Coincident", 3, 2, 0, 1))
sketch15.addConstraint(Sketcher.Constraint("Coincident", 4, 2, 5, 1))
sketch15.addConstraint(Sketcher.Constraint("Coincident", 5, 2, 6, 1))
sketch15.addConstraint(Sketcher.Constraint("Coincident", 6, 2, 7, 1))
sketch15.addConstraint(Sketcher.Constraint("Coincident", 7, 2, 4, 1))
sketch15.addConstraint(Sketcher.Constraint("Vertical", 0))
sketch15.addConstraint(Sketcher.Constraint("Horizontal", 1))
sketch15.addConstraint(Sketcher.Constraint("Vertical", 2))
sketch15.addConstraint(Sketcher.Constraint("Horizontal", 3))
sketch15.addConstraint(Sketcher.Constraint("Vertical", 4))
sketch15.addConstraint(Sketcher.Constraint("Horizontal", 5))
sketch15.addConstraint(Sketcher.Constraint("Vertical", 6))
sketch15.addConstraint(Sketcher.Constraint("Horizontal", 7))
sketch15.addConstraint(Sketcher.Constraint("Symmetric", 3, 2, 4, 2, -1))
sketch15.addConstraint(Sketcher.Constraint("Symmetric", 1, 2, 6, 2, -1))
sketch15.addConstraint(Sketcher.Constraint("DistanceY", 0, 2, 0, 1, Q("7.5 mm")))
sketch15.addConstraint(Sketcher.Constraint("DistanceX", 1, 2, -1, 1, Q("75 mm")))
sketch15.addConstraint(Sketcher.Constraint("DistanceY", -1, 1, 2, 2, Q("20 mm")))
sketch15.addConstraint(Sketcher.Constraint("DistanceX", 1, 1, 1, 2, Q("5.016656 mm")))
pocket8 = body.newObject("PartDesign::Pocket", "Pocket007")
pocket8.Profile = sketch15
pocket8.Length = 1

doc.recompute()
